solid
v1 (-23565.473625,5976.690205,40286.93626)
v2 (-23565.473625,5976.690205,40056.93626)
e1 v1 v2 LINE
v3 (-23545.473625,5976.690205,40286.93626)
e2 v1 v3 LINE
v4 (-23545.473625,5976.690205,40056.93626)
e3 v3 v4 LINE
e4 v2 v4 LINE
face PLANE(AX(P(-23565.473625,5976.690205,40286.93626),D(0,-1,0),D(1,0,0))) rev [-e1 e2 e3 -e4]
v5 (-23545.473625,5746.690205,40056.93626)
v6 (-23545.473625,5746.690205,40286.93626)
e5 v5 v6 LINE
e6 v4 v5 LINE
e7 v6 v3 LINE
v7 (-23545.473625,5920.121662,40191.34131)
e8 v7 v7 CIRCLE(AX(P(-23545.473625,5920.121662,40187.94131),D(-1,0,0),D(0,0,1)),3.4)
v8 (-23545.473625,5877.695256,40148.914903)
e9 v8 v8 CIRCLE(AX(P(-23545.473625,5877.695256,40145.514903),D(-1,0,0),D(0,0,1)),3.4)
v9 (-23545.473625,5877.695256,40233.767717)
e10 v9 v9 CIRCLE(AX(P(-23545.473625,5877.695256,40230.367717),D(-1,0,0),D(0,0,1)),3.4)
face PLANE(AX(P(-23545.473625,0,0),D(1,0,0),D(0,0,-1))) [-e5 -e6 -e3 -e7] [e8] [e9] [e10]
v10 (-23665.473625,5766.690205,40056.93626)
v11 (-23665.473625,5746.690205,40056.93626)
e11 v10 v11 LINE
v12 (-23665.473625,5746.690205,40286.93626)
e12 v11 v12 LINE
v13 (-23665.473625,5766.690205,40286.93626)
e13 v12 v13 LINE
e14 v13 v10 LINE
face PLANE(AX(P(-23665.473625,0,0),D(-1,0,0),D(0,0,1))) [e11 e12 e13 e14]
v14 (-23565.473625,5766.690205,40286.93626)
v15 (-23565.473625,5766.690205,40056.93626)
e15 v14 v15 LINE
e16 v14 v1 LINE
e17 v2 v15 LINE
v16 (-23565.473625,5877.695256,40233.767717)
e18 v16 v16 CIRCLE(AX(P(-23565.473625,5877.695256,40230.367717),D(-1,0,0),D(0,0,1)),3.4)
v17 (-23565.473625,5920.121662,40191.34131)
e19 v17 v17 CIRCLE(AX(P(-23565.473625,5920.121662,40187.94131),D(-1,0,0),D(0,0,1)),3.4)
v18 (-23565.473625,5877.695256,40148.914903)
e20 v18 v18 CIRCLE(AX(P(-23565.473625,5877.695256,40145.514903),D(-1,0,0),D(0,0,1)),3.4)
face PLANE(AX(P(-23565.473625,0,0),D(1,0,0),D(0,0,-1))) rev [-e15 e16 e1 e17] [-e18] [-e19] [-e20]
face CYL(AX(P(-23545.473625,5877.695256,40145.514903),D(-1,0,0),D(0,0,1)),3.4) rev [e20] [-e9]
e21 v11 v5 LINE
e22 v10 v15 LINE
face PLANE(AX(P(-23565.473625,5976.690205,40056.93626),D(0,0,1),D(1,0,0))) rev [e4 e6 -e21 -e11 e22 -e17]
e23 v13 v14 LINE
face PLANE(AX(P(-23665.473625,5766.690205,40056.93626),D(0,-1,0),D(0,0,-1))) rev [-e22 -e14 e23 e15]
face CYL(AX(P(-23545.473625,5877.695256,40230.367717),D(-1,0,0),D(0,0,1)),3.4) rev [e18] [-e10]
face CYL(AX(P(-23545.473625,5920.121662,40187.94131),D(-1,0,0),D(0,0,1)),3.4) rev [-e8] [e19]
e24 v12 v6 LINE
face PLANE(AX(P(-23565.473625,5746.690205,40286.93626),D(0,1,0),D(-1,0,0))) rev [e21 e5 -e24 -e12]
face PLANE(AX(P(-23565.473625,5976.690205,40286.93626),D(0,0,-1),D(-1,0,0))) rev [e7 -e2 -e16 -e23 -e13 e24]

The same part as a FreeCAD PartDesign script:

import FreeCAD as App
import Part
import Sketcher


def add_polygon(sketch, points):
    """Adds a closed chain of lines whose ends are joined by coincident constraints."""
    first, n = sketch.GeometryCount, len(points)
    for a, b in zip(points, points[1:] + points[:1]):
        sketch.addGeometry(Part.LineSegment(App.Vector(*a, 0), App.Vector(*b, 0)), False)
    for i in range(n):
        sketch.addConstraint(Sketcher.Constraint("Coincident", first + i, 2, first + (i + 1) % n, 1))

doc = App.newDocument("Part")
body = doc.addObject("PartDesign::Body", "Body")

sketch1 = doc.addObject("Sketcher::SketchObject", "Sketch")
body.addObject(sketch1)
sketch1.AttachmentSupport = (doc.YZ_Plane, [""])
sketch1.MapMode = "FlatFace"
sketch1.AttachmentOffset = App.Placement(App.Vector(0, 0, -23545.473625), App.Rotation())
add_polygon(sketch1, [(5977, 40057), (5747, 40057), (5747, 40287), (5977, 40287)])
sketch1.addConstraint([
    Sketcher.Constraint("Horizontal", 0),
    Sketcher.Constraint("Vertical", 1),
    Sketcher.Constraint("Horizontal", 2),
    Sketcher.Constraint("Vertical", 3),
    Sketcher.Constraint("Equal", 2, 1),
    Sketcher.Constraint("DistanceX", 0, 2, 0, 1, 230.0),
    Sketcher.Constraint("DistanceY", -1, 1, 0, 2, 40056.93626),
    Sketcher.Constraint("DistanceX", -1, 1, 0, 2, 5746.690205),
])
pad1 = doc.addObject("PartDesign::Pad", "Pad")
body.addObject(pad1)
pad1.Profile = sketch1
pad1.Length = 20
pad1.Reversed = True

sketch2 = doc.addObject("Sketcher::SketchObject", "Sketch001")
body.addObject(sketch2)
sketch2.AttachmentSupport = (doc.YZ_Plane, [""])
sketch2.MapMode = "FlatFace"
sketch2.AttachmentOffset = App.Placement(App.Vector(0, 0, -23565.473625), App.Rotation())
sketch2.addGeometry([
    Part.Circle(App.Vector(5920.1, 40187.9, 0), App.Vector(0, 0, 1), 3.4),
    Part.Circle(App.Vector(5877.7, 40230.4, 0), App.Vector(0, 0, 1), 3.4),
    Part.Circle(App.Vector(5877.7, 40145.5, 0), App.Vector(0, 0, 1), 3.4),
], False)
sketch2.addConstraint([
    Sketcher.Constraint("Equal", 0, 1),
    Sketcher.Constraint("Equal", 1, 2),
    Sketcher.Constraint("Vertical", 1, 3, 2, 3),
    Sketcher.Constraint("Diameter", 0, 6.8),
    Sketcher.Constraint("DistanceY", -1, 1, 0, 3, 40187.94131),
    Sketcher.Constraint("DistanceX", -1, 1, 0, 3, 5920.121662),
    Sketcher.Constraint("DistanceX", -1, 1, 1, 3, 5877.695256),
    Sketcher.Constraint("DistanceY", -1, 1, 1, 3, 40230.367717),
    Sketcher.Constraint("DistanceY", -1, 1, 2, 3, 40145.514903),
])
pocket1 = doc.addObject("PartDesign::Pocket", "Pocket")
body.addObject(pocket1)
pocket1.Profile = sketch2
pocket1.Type = "ThroughAll"
pocket1.Reversed = True

sketch3 = doc.addObject("Sketcher::SketchObject", "Sketch002")
body.addObject(sketch3)
sketch3.AttachmentSupport = (doc.YZ_Plane, [""])
sketch3.MapMode = "FlatFace"
sketch3.AttachmentOffset = App.Placement(App.Vector(0, 0, -23565.473625), App.Rotation())
add_polygon(sketch3, [(5767, 40057), (5747, 40057), (5747, 40287), (5767, 40287)])
sketch3.addConstraint([
    Sketcher.Constraint("Horizontal", 0),
    Sketcher.Constraint("Vertical", 1),
    Sketcher.Constraint("Horizontal", 2),
    Sketcher.Constraint("Vertical", 3),
    Sketcher.Constraint("DistanceX", 0, 2, 0, 1, 20.0),
    Sketcher.Constraint("DistanceY", 1, 1, 1, 2, 230.0),
    Sketcher.Constraint("DistanceY", -1, 1, 0, 2, 40056.93626),
    Sketcher.Constraint("DistanceX", -1, 1, 0, 2, 5746.690205),
])
pad2 = doc.addObject("PartDesign::Pad", "Pad001")
body.addObject(pad2)
pad2.Profile = sketch3
pad2.Length = 100
pad2.Reversed = True

doc.recompute()
